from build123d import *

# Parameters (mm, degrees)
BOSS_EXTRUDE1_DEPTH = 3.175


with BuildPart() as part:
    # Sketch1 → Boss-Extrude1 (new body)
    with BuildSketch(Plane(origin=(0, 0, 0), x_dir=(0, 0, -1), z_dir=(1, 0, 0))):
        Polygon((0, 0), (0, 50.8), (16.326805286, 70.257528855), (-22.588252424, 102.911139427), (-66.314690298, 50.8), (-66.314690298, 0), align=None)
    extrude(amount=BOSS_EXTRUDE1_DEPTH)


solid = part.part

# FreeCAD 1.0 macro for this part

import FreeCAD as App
import Part
import Sketcher
Q = App.Units.Quantity

doc = App.newDocument("Part")
body = doc.addObject("PartDesign::Body", "Body")

sketch1 = body.newObject("Sketcher::SketchObject", "Sketch")
sketch1.AttachmentSupport = (doc.getObject("YZ_Plane"), [""])
sketch1.MapMode = "FlatFace"
sketch1.addGeometry(Part.LineSegment(App.Vector(0, 0, 0), App.Vector(51, 0, 0)), False)
sketch1.addGeometry(Part.LineSegment(App.Vector(51, 0, 0), App.Vector(70, -16, 0)), False)
sketch1.addGeometry(Part.LineSegment(App.Vector(70, -16, 0), App.Vector(103, 23, 0)), False)
sketch1.addGeometry(Part.LineSegment(App.Vector(103, 23, 0), App.Vector(51, 66, 0)), False)
sketch1.addGeometry(Part.LineSegment(App.Vector(51, 66, 0), App.Vector(0, 66, 0)), False)
sketch1.addGeometry(Part.LineSegment(App.Vector(0, 66, 0), App.Vector(0, 0, 0)), False)
sketch1.addConstraint(Sketcher.Constraint("Coincident", 0, 2, 1, 1))
sketch1.addConstraint(Sketcher.Constraint("Coincident", 1, 2, 2, 1))
sketch1.addConstraint(Sketcher.Constraint("Coincident", 2, 2, 3, 1))
sketch1.addConstraint(Sketcher.Constraint("Coincident", 3, 2, 4, 1))
sketch1.addConstraint(Sketcher.Constraint("Coincident", 4, 2, 5, 1))
sketch1.addConstraint(Sketcher.Constraint("Coincident", 5, 2, 0, 1))
sketch1.addConstraint(Sketcher.Constraint("Horizontal", 0))
sketch1.addConstraint(Sketcher.Constraint("Horizontal", 4))
sketch1.addConstraint(Sketcher.Constraint("Vertical", 5))
sketch1.addConstraint(Sketcher.Constraint("Coincident", 5, 2, -1, 1))
sketch1.addConstraint(Sketcher.Constraint("Perpendicular", 1, 2))
sketch1.addConstraint(Sketcher.Constraint("Perpendicular", 2, 3))
sketch1.addConstraint(Sketcher.Constraint("Vertical", 0, 2, 3, 2))
sketch1.addConstraint(Sketcher.Constraint("DistanceX", 0, 1, 0, 2, Q("2 in")))
sketch1.addConstraint(Sketcher.Constraint("Distance", 1, Q("1 in")))
sketch1.addConstraint(Sketcher.Constraint("Distance", 2, Q("2 in")))
sketch1.addConstraint(Sketcher.Constraint("Angle", 1, Q("-40 deg")))
pad1 = body.newObject("PartDesign::Pad", "Pad")
pad1.Profile = sketch1
pad1.Length = Q("0.125 in")

doc.recompute()
